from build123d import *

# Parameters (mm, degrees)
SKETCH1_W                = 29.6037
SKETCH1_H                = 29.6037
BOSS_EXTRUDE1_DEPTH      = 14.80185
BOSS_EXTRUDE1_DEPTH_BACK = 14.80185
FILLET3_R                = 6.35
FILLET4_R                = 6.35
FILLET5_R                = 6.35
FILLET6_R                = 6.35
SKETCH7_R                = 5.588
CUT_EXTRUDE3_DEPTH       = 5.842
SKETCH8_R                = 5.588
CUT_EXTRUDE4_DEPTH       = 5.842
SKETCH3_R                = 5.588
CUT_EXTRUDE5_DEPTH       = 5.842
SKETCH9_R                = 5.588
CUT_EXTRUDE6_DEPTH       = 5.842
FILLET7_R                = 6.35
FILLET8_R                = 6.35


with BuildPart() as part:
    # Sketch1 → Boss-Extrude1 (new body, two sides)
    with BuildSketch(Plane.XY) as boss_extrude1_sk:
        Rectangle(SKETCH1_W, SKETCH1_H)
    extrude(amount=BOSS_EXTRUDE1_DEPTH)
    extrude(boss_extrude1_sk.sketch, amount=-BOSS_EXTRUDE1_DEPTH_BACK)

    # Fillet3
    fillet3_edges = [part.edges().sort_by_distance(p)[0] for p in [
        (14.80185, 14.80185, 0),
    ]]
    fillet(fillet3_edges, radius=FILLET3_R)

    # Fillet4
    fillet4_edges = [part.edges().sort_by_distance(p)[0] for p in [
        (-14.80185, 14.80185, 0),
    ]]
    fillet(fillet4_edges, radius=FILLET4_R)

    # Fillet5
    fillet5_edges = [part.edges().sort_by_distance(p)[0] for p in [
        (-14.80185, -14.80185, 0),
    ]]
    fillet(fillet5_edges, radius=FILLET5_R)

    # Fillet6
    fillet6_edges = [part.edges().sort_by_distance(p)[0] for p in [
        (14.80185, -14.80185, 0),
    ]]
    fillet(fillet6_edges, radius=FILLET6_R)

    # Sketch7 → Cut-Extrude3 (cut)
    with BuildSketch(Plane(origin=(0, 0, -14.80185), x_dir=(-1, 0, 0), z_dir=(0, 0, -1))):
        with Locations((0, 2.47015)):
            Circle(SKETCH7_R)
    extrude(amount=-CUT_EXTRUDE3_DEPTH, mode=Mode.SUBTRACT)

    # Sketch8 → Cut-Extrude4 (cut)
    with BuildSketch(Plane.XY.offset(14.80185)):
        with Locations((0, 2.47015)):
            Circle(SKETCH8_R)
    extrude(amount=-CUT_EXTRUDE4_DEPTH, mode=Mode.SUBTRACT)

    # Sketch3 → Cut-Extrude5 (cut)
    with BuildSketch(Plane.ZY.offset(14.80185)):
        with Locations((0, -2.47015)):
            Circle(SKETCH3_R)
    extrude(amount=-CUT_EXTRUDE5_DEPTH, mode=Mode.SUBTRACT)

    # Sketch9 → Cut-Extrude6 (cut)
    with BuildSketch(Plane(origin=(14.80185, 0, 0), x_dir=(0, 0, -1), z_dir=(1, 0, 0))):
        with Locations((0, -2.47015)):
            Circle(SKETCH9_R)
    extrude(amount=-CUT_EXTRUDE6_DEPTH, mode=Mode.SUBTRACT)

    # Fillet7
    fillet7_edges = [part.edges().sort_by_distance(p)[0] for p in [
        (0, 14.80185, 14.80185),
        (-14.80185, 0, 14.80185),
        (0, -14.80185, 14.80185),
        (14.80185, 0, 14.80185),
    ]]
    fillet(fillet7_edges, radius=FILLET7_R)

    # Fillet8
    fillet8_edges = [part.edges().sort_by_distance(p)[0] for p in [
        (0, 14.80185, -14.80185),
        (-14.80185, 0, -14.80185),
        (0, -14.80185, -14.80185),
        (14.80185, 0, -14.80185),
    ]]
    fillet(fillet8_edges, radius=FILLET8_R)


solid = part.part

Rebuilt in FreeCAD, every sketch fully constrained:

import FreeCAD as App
import Part
import Sketcher

V = App.Vector
Q = App.Units.Quantity


def edges_at(feature, points):
    """Names of the edges that pass closest to the given points."""
    edges = feature.Shape.Edges
    near = lambda p: min(range(len(edges)), key=lambda i: edges[i].distToShape(Part.Vertex(*p))[0])
    return sorted({f"Edge{near(p) + 1}" for p in points})

doc = App.newDocument("Part")
params = doc.addObject("Spreadsheet::Sheet", "Params")
for row, (alias, value) in enumerate([
    ("pad1_length", "14.80185 mm"),
    ("pad1_length2", "14.80185 mm"),
    ("fillet_radius", "0.25 in"),
    ("fillet2_radius", "0.25 in"),
    ("fillet3_radius", "0.25 in"),
    ("fillet4_radius", "0.25 in"),
    ("sketch2_diameter", "0.44 in"),
    ("pocket1_length", "0.23 in"),
    ("sketch3_diameter", "0.44 in"),
    ("pocket2_length", "0.23 in"),
    ("sketch4_diameter", "0.44 in"),
    ("pocket3_length", "0.23 in"),
    ("sketch5_diameter", "0.44 in"),
    ("pocket4_length", "0.23 in"),
    ("fillet5_radius", "0.25 in"),
    ("fillet6_radius", "0.25 in"),
], start=1):
    params.set(f"A{row}", alias)
    params.set(f"B{row}", "=" + value)
    params.setAlias(f"B{row}", alias)

body = doc.addObject("PartDesign::Body", "Body")

sketch1 = body.newObject("Sketcher::SketchObject", "Sketch")
sketch1.AttachmentSupport = (doc.getObject("XY_Plane"), [""])
sketch1.MapMode = "FlatFace"
sketch1.addGeometry(Part.LineSegment(V(-14.80185, 14.80185, 0), V(-14.80185, -14.80185, 0)), False)
sketch1.addGeometry(Part.LineSegment(V(-14.80185, -14.80185, 0), V(14.80185, -14.80185, 0)), False)
sketch1.addGeometry(Part.LineSegment(V(14.80185, -14.80185, 0), V(14.80185, 14.80185, 0)), False)
sketch1.addGeometry(Part.LineSegment(V(14.80185, 14.80185, 0), V(-14.80185, 14.80185, 0)), False)
sketch1.addConstraint(Sketcher.Constraint("Coincident", 0, 2, 1, 1))
sketch1.addConstraint(Sketcher.Constraint("Coincident", 1, 2, 2, 1))
sketch1.addConstraint(Sketcher.Constraint("Coincident", 2, 2, 3, 1))
sketch1.addConstraint(Sketcher.Constraint("Coincident", 3, 2, 0, 1))
sketch1.addConstraint(Sketcher.Constraint("Vertical", 0))
sketch1.addConstraint(Sketcher.Constraint("Horizontal", 1))
sketch1.addConstraint(Sketcher.Constraint("Vertical", 2))
sketch1.addConstraint(Sketcher.Constraint("Horizontal", 3))
sketch1.addConstraint(Sketcher.Constraint("Symmetric", 0, 2, 2, 2, -1, 1))
sketch1.addConstraint(Sketcher.Constraint("Equal", 3, 0))
sketch1.addConstraint(Sketcher.Constraint("DistanceX", 1, 1, 1, 2, Q("1.1655 in")))
pad1 = body.newObject("PartDesign::Pad", "Pad")
pad1.Profile = sketch1
pad1.Type = "TwoLengths"
pad1.setExpression("Length", "Params.pad1_length")
pad1.setExpression("Length2", "Params.pad1_length2")
doc.recompute()

fillet = body.newObject("PartDesign::Fillet", "Fillet")
fillet.Base = (pad1, edges_at(pad1, [(14.802, 14.802, 0)]))
fillet.setExpression("Radius", "Params.fillet_radius")
doc.recompute()

fillet2 = body.newObject("PartDesign::Fillet", "Fillet001")
fillet2.Base = (fillet, edges_at(fillet, [(-14.802, 14.802, 0)]))
fillet2.setExpression("Radius", "Params.fillet2_radius")
doc.recompute()

fillet3 = body.newObject("PartDesign::Fillet", "Fillet002")
fillet3.Base = (fillet2, edges_at(fillet2, [(-14.802, -14.802, 0)]))
fillet3.setExpression("Radius", "Params.fillet3_radius")
doc.recompute()

fillet4 = body.newObject("PartDesign::Fillet", "Fillet003")
fillet4.Base = (fillet3, edges_at(fillet3, [(14.802, -14.802, 0)]))
fillet4.setExpression("Radius", "Params.fillet4_radius")

sketch2 = body.newObject("Sketcher::SketchObject", "Sketch001")
sketch2.AttachmentSupport = (doc.getObject("XY_Plane"), [""])
sketch2.MapMode = "FlatFace"
sketch2.AttachmentOffset = App.Placement(V(0, 0, -14.80185), App.Rotation())
sketch2.addGeometry(Part.Circle(V(0, 2.47015, 0), V(0, 0, 1), 5.588), False)
sketch2.addConstraint(Sketcher.Constraint("PointOnObject", 0, 3, -2))
sketch2.addConstraint(Sketcher.Constraint("Diameter", 0, Q("0.44 in")))
sketch2.addConstraint(Sketcher.Constraint("DistanceY", -1, 1, 0, 3, 2.47015))
sketch2.setExpression("Constraints[1]", "Params.sketch2_diameter")
pocket1 = body.newObject("PartDesign::Pocket", "Pocket")
pocket1.Profile = sketch2
pocket1.setExpression("Length", "Params.pocket1_length")
pocket1.Reversed = True

sketch3 = body.newObject("Sketcher::SketchObject", "Sketch002")
sketch3.AttachmentSupport = (doc.getObject("XY_Plane"), [""])
sketch3.MapMode = "FlatFace"
sketch3.AttachmentOffset = App.Placement(V(0, 0, 14.80185), App.Rotation())
sketch3.addGeometry(Part.Circle(V(0, 2.47015, 0), V(0, 0, 1), 5.588), False)
sketch3.addConstraint(Sketcher.Constraint("PointOnObject", 0, 3, -2))
sketch3.addConstraint(Sketcher.Constraint("Diameter", 0, Q("0.44 in")))
sketch3.addConstraint(Sketcher.Constraint("DistanceY", -1, 1, 0, 3, 2.47015))
sketch3.setExpression("Constraints[1]", "Params.sketch3_diameter")
pocket2 = body.newObject("PartDesign::Pocket", "Pocket001")
pocket2.Profile = sketch3
pocket2.setExpression("Length", "Params.pocket2_length")

sketch4 = body.newObject("Sketcher::SketchObject", "Sketch003")
sketch4.AttachmentSupport = (doc.getObject("YZ_Plane"), [""])
sketch4.MapMode = "FlatFace"
sketch4.AttachmentOffset = App.Placement(V(0, 0, -14.80185), App.Rotation())
sketch4.addGeometry(Part.Circle(V(-2.47015, 0, 0), V(0, 0, 1), 5.588), False)
sketch4.addConstraint(Sketcher.Constraint("PointOnObject", 0, 3, -1))
sketch4.addConstraint(Sketcher.Constraint("Diameter", 0, Q("0.44 in")))
sketch4.addConstraint(Sketcher.Constraint("DistanceX", 0, 3, -1, 1, 2.47015))
sketch4.setExpression("Constraints[1]", "Params.sketch4_diameter")
pocket3 = body.newObject("PartDesign::Pocket", "Pocket002")
pocket3.Profile = sketch4
pocket3.setExpression("Length", "Params.pocket3_length")
pocket3.Reversed = True

sketch5 = body.newObject("Sketcher::SketchObject", "Sketch004")
sketch5.AttachmentSupport = (doc.getObject("YZ_Plane"), [""])
sketch5.MapMode = "FlatFace"
sketch5.AttachmentOffset = App.Placement(V(0, 0, 14.80185), App.Rotation())
sketch5.addGeometry(Part.Circle(V(-2.47015, 0, 0), V(0, 0, 1), 5.588), False)
sketch5.addConstraint(Sketcher.Constraint("PointOnObject", 0, 3, -1))
sketch5.addConstraint(Sketcher.Constraint("Diameter", 0, Q("0.44 in")))
sketch5.addConstraint(Sketcher.Constraint("DistanceX", 0, 3, -1, 1, 2.47015))
sketch5.setExpression("Constraints[1]", "Params.sketch5_diameter")
pocket4 = body.newObject("PartDesign::Pocket", "Pocket003")
pocket4.Profile = sketch5
pocket4.setExpression("Length", "Params.pocket4_length")
doc.recompute()

fillet5 = body.newObject("PartDesign::Fillet", "Fillet004")
fillet5.Base = (pocket4, edges_at(pocket4, [
    (0, 14.802, 14.802),
    (-14.802, 0, 14.802),
    (0, -14.802, 14.802),
    (14.802, 0, 14.802),
]))
fillet5.setExpression("Radius", "Params.fillet5_radius")
doc.recompute()

fillet6 = body.newObject("PartDesign::Fillet", "Fillet005")
fillet6.Base = (fillet5, edges_at(fillet5, [
    (0, 14.802, -14.802),
    (-14.802, 0, -14.802),
    (0, -14.802, -14.802),
    (14.802, 0, -14.802),
]))
fillet6.setExpression("Radius", "Params.fillet6_radius")

doc.recompute()
